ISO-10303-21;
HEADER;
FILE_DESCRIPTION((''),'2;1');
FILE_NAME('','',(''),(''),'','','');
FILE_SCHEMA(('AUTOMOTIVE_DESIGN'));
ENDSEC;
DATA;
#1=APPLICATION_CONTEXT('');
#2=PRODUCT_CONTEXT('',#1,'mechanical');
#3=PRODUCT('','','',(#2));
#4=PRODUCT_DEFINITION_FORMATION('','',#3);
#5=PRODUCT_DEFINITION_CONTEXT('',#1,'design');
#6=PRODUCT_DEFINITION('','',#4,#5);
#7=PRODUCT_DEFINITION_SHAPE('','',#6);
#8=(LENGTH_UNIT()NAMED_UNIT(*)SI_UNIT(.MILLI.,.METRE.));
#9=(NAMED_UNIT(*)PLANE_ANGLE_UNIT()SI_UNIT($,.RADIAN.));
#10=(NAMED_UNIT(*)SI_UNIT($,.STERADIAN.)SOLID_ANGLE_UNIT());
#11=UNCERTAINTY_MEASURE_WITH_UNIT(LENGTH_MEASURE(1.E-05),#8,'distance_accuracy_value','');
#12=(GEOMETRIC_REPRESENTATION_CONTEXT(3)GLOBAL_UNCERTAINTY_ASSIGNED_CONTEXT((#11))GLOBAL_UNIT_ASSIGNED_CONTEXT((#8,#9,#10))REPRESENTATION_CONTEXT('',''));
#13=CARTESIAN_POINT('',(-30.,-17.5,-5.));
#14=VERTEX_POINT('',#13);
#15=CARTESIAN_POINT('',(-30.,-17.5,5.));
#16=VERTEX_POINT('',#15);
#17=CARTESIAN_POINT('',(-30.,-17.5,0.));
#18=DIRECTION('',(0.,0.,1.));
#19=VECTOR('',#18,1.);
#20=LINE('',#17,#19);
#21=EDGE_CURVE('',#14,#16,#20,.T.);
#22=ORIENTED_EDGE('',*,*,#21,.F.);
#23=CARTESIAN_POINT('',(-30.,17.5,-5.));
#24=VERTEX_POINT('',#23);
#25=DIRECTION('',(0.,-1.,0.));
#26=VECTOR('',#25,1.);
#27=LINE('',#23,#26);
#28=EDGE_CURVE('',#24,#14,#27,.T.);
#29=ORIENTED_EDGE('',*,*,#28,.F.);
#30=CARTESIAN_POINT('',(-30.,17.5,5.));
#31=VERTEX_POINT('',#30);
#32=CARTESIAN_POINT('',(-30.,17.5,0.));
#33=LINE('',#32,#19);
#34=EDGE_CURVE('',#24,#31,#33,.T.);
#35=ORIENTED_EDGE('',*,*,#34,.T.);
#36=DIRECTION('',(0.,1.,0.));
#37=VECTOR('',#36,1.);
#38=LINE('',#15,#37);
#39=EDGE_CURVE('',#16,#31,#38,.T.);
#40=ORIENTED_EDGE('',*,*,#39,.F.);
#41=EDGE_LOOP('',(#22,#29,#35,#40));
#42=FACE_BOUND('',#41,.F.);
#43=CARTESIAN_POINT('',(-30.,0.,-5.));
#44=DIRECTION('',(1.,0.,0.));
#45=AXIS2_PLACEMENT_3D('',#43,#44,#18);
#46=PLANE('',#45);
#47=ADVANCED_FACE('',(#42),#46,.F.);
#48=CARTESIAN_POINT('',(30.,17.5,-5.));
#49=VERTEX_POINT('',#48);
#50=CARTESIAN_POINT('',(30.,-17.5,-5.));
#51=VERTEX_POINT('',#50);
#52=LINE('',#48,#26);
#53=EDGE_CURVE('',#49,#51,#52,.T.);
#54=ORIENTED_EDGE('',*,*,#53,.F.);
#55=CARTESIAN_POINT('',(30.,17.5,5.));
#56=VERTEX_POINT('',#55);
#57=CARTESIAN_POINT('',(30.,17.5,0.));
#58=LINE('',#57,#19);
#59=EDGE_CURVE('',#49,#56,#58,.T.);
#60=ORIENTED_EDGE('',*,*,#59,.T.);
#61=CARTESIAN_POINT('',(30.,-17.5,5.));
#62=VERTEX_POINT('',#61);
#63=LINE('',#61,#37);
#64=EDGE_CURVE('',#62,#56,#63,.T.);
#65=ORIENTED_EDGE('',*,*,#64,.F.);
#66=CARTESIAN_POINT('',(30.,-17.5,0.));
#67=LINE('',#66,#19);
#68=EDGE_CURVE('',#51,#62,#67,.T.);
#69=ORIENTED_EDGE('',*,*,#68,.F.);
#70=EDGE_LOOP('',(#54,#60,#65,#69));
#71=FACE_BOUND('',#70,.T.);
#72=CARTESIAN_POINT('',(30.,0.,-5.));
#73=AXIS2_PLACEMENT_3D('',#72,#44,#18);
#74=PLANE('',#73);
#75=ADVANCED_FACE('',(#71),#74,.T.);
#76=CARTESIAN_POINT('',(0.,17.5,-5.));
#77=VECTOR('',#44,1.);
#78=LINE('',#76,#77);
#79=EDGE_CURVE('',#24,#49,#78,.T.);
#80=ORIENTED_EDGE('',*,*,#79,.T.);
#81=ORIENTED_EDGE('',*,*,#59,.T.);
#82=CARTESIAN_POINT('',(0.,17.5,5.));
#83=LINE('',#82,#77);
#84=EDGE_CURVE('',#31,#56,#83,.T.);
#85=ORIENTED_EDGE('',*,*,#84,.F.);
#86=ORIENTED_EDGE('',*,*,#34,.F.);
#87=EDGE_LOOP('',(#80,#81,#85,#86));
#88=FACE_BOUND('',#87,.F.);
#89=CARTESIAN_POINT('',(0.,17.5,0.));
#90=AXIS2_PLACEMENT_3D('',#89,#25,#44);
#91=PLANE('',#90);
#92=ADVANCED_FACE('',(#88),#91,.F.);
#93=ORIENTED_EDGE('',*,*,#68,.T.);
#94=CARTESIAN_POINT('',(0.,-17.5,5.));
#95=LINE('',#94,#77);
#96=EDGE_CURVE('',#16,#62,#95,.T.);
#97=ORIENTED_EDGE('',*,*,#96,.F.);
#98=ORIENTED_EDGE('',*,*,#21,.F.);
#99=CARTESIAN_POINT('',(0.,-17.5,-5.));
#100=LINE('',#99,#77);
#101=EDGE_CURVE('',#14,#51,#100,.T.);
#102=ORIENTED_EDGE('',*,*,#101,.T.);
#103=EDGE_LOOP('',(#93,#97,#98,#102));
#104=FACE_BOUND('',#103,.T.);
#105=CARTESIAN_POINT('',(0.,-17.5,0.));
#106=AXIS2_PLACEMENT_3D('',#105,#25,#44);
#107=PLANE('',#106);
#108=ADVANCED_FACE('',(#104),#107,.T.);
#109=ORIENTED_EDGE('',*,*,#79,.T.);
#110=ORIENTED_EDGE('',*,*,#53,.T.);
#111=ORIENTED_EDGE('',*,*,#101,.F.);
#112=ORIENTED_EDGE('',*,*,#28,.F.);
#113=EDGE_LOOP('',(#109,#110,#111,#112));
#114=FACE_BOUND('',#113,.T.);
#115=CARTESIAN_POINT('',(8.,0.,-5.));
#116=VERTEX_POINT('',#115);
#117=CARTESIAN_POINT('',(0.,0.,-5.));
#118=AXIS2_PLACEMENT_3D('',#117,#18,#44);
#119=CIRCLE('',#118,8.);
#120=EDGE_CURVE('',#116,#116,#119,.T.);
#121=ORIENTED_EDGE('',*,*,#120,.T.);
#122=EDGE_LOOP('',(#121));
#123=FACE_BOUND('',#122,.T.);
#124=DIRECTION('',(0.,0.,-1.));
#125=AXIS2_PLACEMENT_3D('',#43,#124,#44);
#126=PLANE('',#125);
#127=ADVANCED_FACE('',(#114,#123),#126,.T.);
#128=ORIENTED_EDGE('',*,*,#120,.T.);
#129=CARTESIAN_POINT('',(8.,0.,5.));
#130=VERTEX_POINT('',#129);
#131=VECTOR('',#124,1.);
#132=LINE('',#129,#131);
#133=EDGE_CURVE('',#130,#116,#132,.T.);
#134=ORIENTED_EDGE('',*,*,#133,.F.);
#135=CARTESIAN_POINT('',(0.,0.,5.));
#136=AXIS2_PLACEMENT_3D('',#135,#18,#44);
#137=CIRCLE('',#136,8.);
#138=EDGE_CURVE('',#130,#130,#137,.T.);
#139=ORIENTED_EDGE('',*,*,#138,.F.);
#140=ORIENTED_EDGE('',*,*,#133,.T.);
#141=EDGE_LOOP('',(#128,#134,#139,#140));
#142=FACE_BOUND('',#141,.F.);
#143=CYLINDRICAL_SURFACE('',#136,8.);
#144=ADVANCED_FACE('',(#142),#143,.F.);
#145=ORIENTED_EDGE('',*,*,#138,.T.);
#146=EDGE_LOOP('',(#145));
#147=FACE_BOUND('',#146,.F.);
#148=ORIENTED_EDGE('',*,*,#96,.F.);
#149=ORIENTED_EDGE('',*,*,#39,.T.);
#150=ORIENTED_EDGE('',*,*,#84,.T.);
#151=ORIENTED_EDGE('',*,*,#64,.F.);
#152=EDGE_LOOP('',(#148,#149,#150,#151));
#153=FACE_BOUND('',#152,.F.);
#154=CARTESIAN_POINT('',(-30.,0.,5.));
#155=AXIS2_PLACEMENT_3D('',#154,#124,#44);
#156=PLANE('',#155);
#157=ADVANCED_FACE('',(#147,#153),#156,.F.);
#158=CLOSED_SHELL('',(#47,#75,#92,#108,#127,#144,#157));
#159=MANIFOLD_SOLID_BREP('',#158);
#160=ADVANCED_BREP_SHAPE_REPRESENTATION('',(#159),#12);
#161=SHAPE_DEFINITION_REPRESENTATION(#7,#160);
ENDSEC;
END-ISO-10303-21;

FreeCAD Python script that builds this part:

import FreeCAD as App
import Part
import Sketcher
Q = App.Units.Quantity

doc = App.newDocument("Part")
params = doc.addObject("Spreadsheet::Sheet", "Params")
for row, (alias, value) in enumerate([
    ("sketch1_width", "60 mm"),
    ("sketch1_height", "10 mm"),
    ("pad1_length", "35 mm"),
    ("sketch2_diameter", "16 mm"),
], start=1):
    params.set(f"A{row}", alias)
    params.set(f"B{row}", "=" + value)
    params.setAlias(f"B{row}", alias)

body = doc.addObject("PartDesign::Body", "Body")

sketch1 = body.newObject("Sketcher::SketchObject", "Sketch")
sketch1.AttachmentSupport = (doc.getObject("XZ_Plane"), [""])
sketch1.MapMode = "FlatFace"
sketch1.addGeometry(Part.LineSegment(App.Vector(-30, 5, 0), App.Vector(-30, -5, 0)), False)
sketch1.addGeometry(Part.LineSegment(App.Vector(-30, -5, 0), App.Vector(30, -5, 0)), False)
sketch1.addGeometry(Part.LineSegment(App.Vector(30, -5, 0), App.Vector(30, 5, 0)), False)
sketch1.addGeometry(Part.LineSegment(App.Vector(30, 5, 0), App.Vector(-30, 5, 0)), False)
sketch1.addConstraint(Sketcher.Constraint("Coincident", 0, 2, 1, 1))
sketch1.addConstraint(Sketcher.Constraint("Coincident", 1, 2, 2, 1))
sketch1.addConstraint(Sketcher.Constraint("Coincident", 2, 2, 3, 1))
sketch1.addConstraint(Sketcher.Constraint("Coincident", 3, 2, 0, 1))
sketch1.addConstraint(Sketcher.Constraint("Vertical", 0))
sketch1.addConstraint(Sketcher.Constraint("Horizontal", 1))
sketch1.addConstraint(Sketcher.Constraint("Vertical", 2))
sketch1.addConstraint(Sketcher.Constraint("Horizontal", 3))
sketch1.addConstraint(Sketcher.Constraint("Symmetric", 0, 2, 2, 2, -1, 1))
sketch1.addConstraint(Sketcher.Constraint("DistanceX", 1, 1, 1, 2, Q("60 mm")))
sketch1.addConstraint(Sketcher.Constraint("DistanceY", 0, 2, 0, 1, Q("10 mm")))
sketch1.setExpression("Constraints[9]", "Params.sketch1_width")
sketch1.setExpression("Constraints[10]", "Params.sketch1_height")
pad1 = body.newObject("PartDesign::Pad", "Pad")
pad1.Profile = sketch1
pad1.setExpression("Length", "Params.pad1_length")
pad1.Midplane = True

sketch2 = body.newObject("Sketcher::SketchObject", "Sketch001")
sketch2.AttachmentSupport = (doc.getObject("XY_Plane"), [""])
sketch2.MapMode = "FlatFace"
sketch2.AttachmentOffset = App.Placement(App.Vector(0, 0, 5), App.Rotation())
sketch2.addGeometry(Part.Circle(App.Vector(0, 0, 0), App.Vector(0, 0, 1), 8), False)
sketch2.addConstraint(Sketcher.Constraint("Coincident", 0, 3, -1, 1))
sketch2.addConstraint(Sketcher.Constraint("Diameter", 0, Q("16 mm")))
sketch2.setExpression("Constraints[1]", "Params.sketch2_diameter")
pocket1 = body.newObject("PartDesign::Pocket", "Pocket")
pocket1.Profile = sketch2
pocket1.Type = "ThroughAll"

doc.recompute()
